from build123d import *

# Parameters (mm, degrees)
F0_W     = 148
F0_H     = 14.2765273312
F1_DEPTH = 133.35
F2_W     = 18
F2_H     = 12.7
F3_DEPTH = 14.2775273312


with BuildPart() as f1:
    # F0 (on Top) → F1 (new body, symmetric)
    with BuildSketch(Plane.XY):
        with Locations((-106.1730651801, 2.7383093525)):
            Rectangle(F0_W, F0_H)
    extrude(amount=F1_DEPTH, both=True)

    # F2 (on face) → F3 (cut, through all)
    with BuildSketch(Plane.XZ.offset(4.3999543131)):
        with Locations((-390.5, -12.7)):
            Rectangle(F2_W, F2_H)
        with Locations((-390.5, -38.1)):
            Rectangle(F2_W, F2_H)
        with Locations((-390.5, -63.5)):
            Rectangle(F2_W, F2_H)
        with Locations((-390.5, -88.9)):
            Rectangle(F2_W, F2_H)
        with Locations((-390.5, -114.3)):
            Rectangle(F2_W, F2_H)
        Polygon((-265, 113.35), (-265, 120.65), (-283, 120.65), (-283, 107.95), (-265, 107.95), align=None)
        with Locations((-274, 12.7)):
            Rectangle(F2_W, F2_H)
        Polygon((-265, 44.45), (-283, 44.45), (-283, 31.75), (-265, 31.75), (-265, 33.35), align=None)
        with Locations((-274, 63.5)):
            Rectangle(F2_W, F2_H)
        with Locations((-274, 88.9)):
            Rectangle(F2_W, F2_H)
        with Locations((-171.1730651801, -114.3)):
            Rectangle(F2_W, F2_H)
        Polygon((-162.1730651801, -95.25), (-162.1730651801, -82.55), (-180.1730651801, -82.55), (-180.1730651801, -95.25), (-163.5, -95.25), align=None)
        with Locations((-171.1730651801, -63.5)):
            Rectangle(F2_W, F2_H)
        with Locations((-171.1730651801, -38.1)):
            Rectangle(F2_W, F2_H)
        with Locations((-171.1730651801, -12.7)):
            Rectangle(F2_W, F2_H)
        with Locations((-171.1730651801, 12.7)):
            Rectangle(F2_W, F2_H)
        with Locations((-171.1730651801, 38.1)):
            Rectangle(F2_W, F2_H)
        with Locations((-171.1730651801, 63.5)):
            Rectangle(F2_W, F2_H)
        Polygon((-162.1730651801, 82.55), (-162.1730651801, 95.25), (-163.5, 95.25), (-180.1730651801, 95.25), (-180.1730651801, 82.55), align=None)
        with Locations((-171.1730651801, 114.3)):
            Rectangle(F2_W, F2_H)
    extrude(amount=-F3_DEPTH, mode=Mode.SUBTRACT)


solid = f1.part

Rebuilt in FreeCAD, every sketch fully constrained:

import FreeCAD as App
import Part
import Sketcher

V = App.Vector
Q = App.Units.Quantity


def add_polygon(sketch, points):
    """Adds a closed chain of lines whose ends are joined by coincident constraints."""
    first, n = sketch.GeometryCount, len(points)
    for a, b in zip(points, points[1:] + points[:1]):
        sketch.addGeometry(Part.LineSegment(App.Vector(*a, 0), App.Vector(*b, 0)), False)
    for i in range(n):
        sketch.addConstraint(Sketcher.Constraint("Coincident", first + i, 2, first + (i + 1) % n, 1))

doc = App.newDocument("Part")
body = doc.addObject("PartDesign::Body", "Body")

# Sketch on XY plane
sketch1 = body.newObject("Sketcher::SketchObject", "Sketch")
sketch1.AttachmentSupport = (doc.getObject("XY_Plane"), [""])
sketch1.MapMode = "FlatFace"
add_polygon(sketch1, [(-180, 10), (-180, -4), (-32, -4), (-32, 10)])  # lines 0-3
sketch1.addConstraint([
    Sketcher.Constraint("Vertical", 0),
    Sketcher.Constraint("Horizontal", 1),
    Sketcher.Constraint("Vertical", 2),
    Sketcher.Constraint("Horizontal", 3),
    Sketcher.Constraint("DistanceX", 1, 1, 1, 2, Q("148 mm")),
    Sketcher.Constraint("DistanceY", 0, 2, 0, 1, Q("14.276527 mm")),
    Sketcher.Constraint("DistanceX", 0, 2, -1, 1, Q("180.173065 mm")),
    Sketcher.Constraint("DistanceY", 0, 2, -1, 1, Q("4.399954 mm")),
])
pad1 = body.newObject("PartDesign::Pad", "Pad")
pad1.Profile = sketch1
pad1.Length = 266.7
pad1.Midplane = True

# Sketch on XZ plane
sketch2 = body.newObject("Sketcher::SketchObject", "Sketch001")
sketch2.AttachmentSupport = (doc.getObject("XZ_Plane"), [""])
sketch2.MapMode = "FlatFace"
sketch2.AttachmentOffset = App.Placement(V(0, 0, 4.399954), App.Rotation())
add_polygon(sketch2, [(-400, -6), (-400, -19), (-382, -19), (-382, -6)])  # lines 0-3
add_polygon(sketch2, [(-400, -32), (-400, -44), (-382, -44), (-382, -32)])  # lines 4-7
add_polygon(sketch2, [(-400, -57), (-400, -70), (-382, -70), (-382, -57)])  # lines 8-11
add_polygon(sketch2, [(-400, -83), (-400, -95), (-382, -95), (-382, -83)])  # lines 12-15
add_polygon(sketch2, [(-400, -108), (-400, -121), (-382, -121), (-382, -108)])  # lines 16-19
add_polygon(sketch2, [(-265, 121), (-283, 121), (-283, 108), (-265, 108)])  # lines 20-23
add_polygon(sketch2, [(-283, 19), (-283, 6), (-265, 6), (-265, 19)])  # lines 24-27
add_polygon(sketch2, [(-265, 44), (-283, 44), (-283, 32), (-265, 32)])  # lines 28-31
add_polygon(sketch2, [(-283, 70), (-283, 57), (-265, 57), (-265, 70)])  # lines 32-35
add_polygon(sketch2, [(-283, 95), (-283, 83), (-265, 83), (-265, 95)])  # lines 36-39
add_polygon(sketch2, [(-180, -108), (-180, -121), (-162, -121), (-162, -108)])  # lines 40-43
add_polygon(sketch2, [(-162, -95), (-162, -83), (-180, -83), (-180, -95)])  # lines 44-47
add_polygon(sketch2, [(-180, -57), (-180, -70), (-162, -70), (-162, -57)])  # lines 48-51
add_polygon(sketch2, [(-180, -32), (-180, -44), (-162, -44), (-162, -32)])  # lines 52-55
add_polygon(sketch2, [(-180, -6), (-180, -19), (-162, -19), (-162, -6)])  # lines 56-59
add_polygon(sketch2, [(-180, 19), (-180, 6), (-162, 6), (-162, 19)])  # lines 60-63
add_polygon(sketch2, [(-180, 44), (-180, 32), (-162, 32), (-162, 44)])  # lines 64-67
add_polygon(sketch2, [(-180, 70), (-180, 57), (-162, 57), (-162, 70)])  # lines 68-71
add_polygon(sketch2, [(-162, 83), (-162, 95), (-180, 95), (-180, 83)])  # lines 72-75
add_polygon(sketch2, [(-180, 121), (-180, 108), (-162, 108), (-162, 121)])  # lines 76-79
sketch2.addConstraint([
    Sketcher.Constraint("Vertical", 0),
    Sketcher.Constraint("Horizontal", 1),
    Sketcher.Constraint("Vertical", 2),
    Sketcher.Constraint("Horizontal", 3),
    Sketcher.Constraint("Vertical", 4),
    Sketcher.Constraint("Horizontal", 5),
    Sketcher.Constraint("Vertical", 6),
    Sketcher.Constraint("Horizontal", 7),
    Sketcher.Constraint("Vertical", 8),
    Sketcher.Constraint("Horizontal", 9),
    Sketcher.Constraint("Vertical", 10),
    Sketcher.Constraint("Horizontal", 11),
    Sketcher.Constraint("Vertical", 12),
    Sketcher.Constraint("Horizontal", 13),
    Sketcher.Constraint("Vertical", 14),
    Sketcher.Constraint("Horizontal", 15),
    Sketcher.Constraint("Vertical", 16),
    Sketcher.Constraint("Horizontal", 17),
    Sketcher.Constraint("Vertical", 18),
    Sketcher.Constraint("Horizontal", 19),
    Sketcher.Constraint("Horizontal", 20),
    Sketcher.Constraint("Vertical", 21),
    Sketcher.Constraint("Horizontal", 22),
    Sketcher.Constraint("Vertical", 23),
    Sketcher.Constraint("Vertical", 24),
    Sketcher.Constraint("Horizontal", 25),
    Sketcher.Constraint("Vertical", 26),
    Sketcher.Constraint("Horizontal", 27),
    Sketcher.Constraint("Horizontal", 28),
    Sketcher.Constraint("Vertical", 29),
    Sketcher.Constraint("Horizontal", 30),
    Sketcher.Constraint("Vertical", 31),
    Sketcher.Constraint("Vertical", 32),
    Sketcher.Constraint("Horizontal", 33),
    Sketcher.Constraint("Vertical", 34),
    Sketcher.Constraint("Horizontal", 35),
    Sketcher.Constraint("Vertical", 36),
    Sketcher.Constraint("Horizontal", 37),
    Sketcher.Constraint("Vertical", 38),
    Sketcher.Constraint("Horizontal", 39),
    Sketcher.Constraint("Vertical", 40),
    Sketcher.Constraint("Horizontal", 41),
    Sketcher.Constraint("Vertical", 42),
    Sketcher.Constraint("Horizontal", 43),
    Sketcher.Constraint("Vertical", 44),
    Sketcher.Constraint("Horizontal", 45),
    Sketcher.Constraint("Vertical", 46),
    Sketcher.Constraint("Horizontal", 47),
    Sketcher.Constraint("Vertical", 48),
    Sketcher.Constraint("Horizontal", 49),
    Sketcher.Constraint("Vertical", 50),
    Sketcher.Constraint("Horizontal", 51),
    Sketcher.Constraint("Vertical", 52),
    Sketcher.Constraint("Horizontal", 53),
    Sketcher.Constraint("Vertical", 54),
    Sketcher.Constraint("Horizontal", 55),
    Sketcher.Constraint("Vertical", 56),
    Sketcher.Constraint("Horizontal", 57),
    Sketcher.Constraint("Vertical", 58),
    Sketcher.Constraint("Horizontal", 59),
    Sketcher.Constraint("Vertical", 60),
    Sketcher.Constraint("Horizontal", 61),
    Sketcher.Constraint("Vertical", 62),
    Sketcher.Constraint("Horizontal", 63),
    Sketcher.Constraint("Vertical", 64),
    Sketcher.Constraint("Horizontal", 65),
    Sketcher.Constraint("Vertical", 66),
    Sketcher.Constraint("Horizontal", 67),
    Sketcher.Constraint("Vertical", 68),
    Sketcher.Constraint("Horizontal", 69),
    Sketcher.Constraint("Vertical", 70),
    Sketcher.Constraint("Horizontal", 71),
    Sketcher.Constraint("Vertical", 72),
    Sketcher.Constraint("Horizontal", 73),
    Sketcher.Constraint("Vertical", 74),
    Sketcher.Constraint("Horizontal", 75),
    Sketcher.Constraint("Vertical", 76),
    Sketcher.Constraint("Horizontal", 77),
    Sketcher.Constraint("Vertical", 78),
    Sketcher.Constraint("Horizontal", 79),
    Sketcher.Constraint("Symmetric", 59, 2, 60, 2, -1),
    Sketcher.Constraint("Symmetric", 57, 2, 62, 2, -1),
    Sketcher.Constraint("Symmetric", 55, 2, 64, 2, -1),
    Sketcher.Constraint("Symmetric", 53, 2, 66, 2, -1),
    Sketcher.Constraint("Symmetric", 51, 2, 68, 2, -1),
    Sketcher.Constraint("Symmetric", 49, 2, 70, 2, -1),
    Sketcher.Constraint("Symmetric", 47, 2, 72, 2, -1),
    Sketcher.Constraint("Symmetric", 45, 2, 74, 2, -1),
    Sketcher.Constraint("Symmetric", 43, 2, 76, 2, -1),
    Sketcher.Constraint("Symmetric", 41, 2, 78, 2, -1),
    Sketcher.Constraint("Horizontal", 17, 2, 40, 2),
    Sketcher.Constraint("Horizontal", 19, 2, 42, 2),
    Sketcher.Constraint("Horizontal", 15, 2, 44, 2),
    Sketcher.Constraint("Horizontal", 13, 2, 46, 2),
    Sketcher.Constraint("Horizontal", 9, 2, 48, 2),
    Sketcher.Constraint("Horizontal", 11, 2, 50, 2),
    Sketcher.Constraint("Horizontal", 5, 2, 52, 2),
    Sketcher.Constraint("Horizontal", 7, 2, 54, 2),
    Sketcher.Constraint("Horizontal", 1, 2, 56, 2),
    Sketcher.Constraint("Horizontal", 3, 2, 58, 2),
    Sketcher.Constraint("Horizontal", 25, 2, 60, 2),
    Sketcher.Constraint("Horizontal", 27, 2, 62, 2),
    Sketcher.Constraint("Horizontal", 30, 2, 64, 2),
    Sketcher.Constraint("Horizontal", 31, 2, 66, 2),
    Sketcher.Constraint("Horizontal", 33, 2, 68, 2),
    Sketcher.Constraint("Horizontal", 35, 2, 70, 2),
    Sketcher.Constraint("Horizontal", 39, 2, 72, 2),
    Sketcher.Constraint("Horizontal", 37, 2, 74, 2),
    Sketcher.Constraint("Horizontal", 22, 2, 76, 2),
    Sketcher.Constraint("Horizontal", 23, 2, 78, 2),
    Sketcher.Constraint("Vertical", 3, 2, 4, 2),
    Sketcher.Constraint("Vertical", 2, 2, 5, 2),
    Sketcher.Constraint("Vertical", 7, 2, 8, 2),
    Sketcher.Constraint("Vertical", 6, 2, 9, 2),
    Sketcher.Constraint("Vertical", 11, 2, 12, 2),
    Sketcher.Constraint("Vertical", 10, 2, 13, 2),
    Sketcher.Constraint("Vertical", 15, 2, 16, 2),
    Sketcher.Constraint("Vertical", 14, 2, 17, 2),
    Sketcher.Constraint("Vertical", 21, 2, 24, 2),
    Sketcher.Constraint("Vertical", 23, 2, 25, 2),
    Sketcher.Constraint("Vertical", 27, 2, 28, 2),
    Sketcher.Constraint("Vertical", 26, 2, 30, 2),
    Sketcher.Constraint("Vertical", 29, 2, 32, 2),
    Sketcher.Constraint("Vertical", 31, 2, 33, 2),
    Sketcher.Constraint("Vertical", 35, 2, 36, 2),
    Sketcher.Constraint("Vertical", 34, 2, 37, 2),
    Sketcher.Constraint("Vertical", 42, 2, 44, 2),
    Sketcher.Constraint("Vertical", 43, 2, 45, 2),
    Sketcher.Constraint("Vertical", 46, 2, 48, 2),
    Sketcher.Constraint("Vertical", 47, 2, 49, 2),
    Sketcher.Constraint("Vertical", 51, 2, 52, 2),
    Sketcher.Constraint("Vertical", 50, 2, 53, 2),
    Sketcher.Constraint("Vertical", 55, 2, 56, 2),
    Sketcher.Constraint("Vertical", 54, 2, 57, 2),
    Sketcher.Constraint("Equal", 19, 20),
    Sketcher.Constraint("Equal", 39, 41),
    Sketcher.Constraint("Equal", 2, 4),
    Sketcher.Constraint("Equal", 6, 8),
    Sketcher.Constraint("Equal", 10, 12),
    Sketcher.Constraint("Equal", 14, 16),
    Sketcher.Constraint("DistanceX", 1, 1, 1, 2, Q("18 mm")),
    Sketcher.Constraint("DistanceY", 0, 2, 0, 1, Q("12.7 mm")),
    Sketcher.Constraint("DistanceX", 20, 2, -1, 1, Q("283 mm")),
    Sketcher.Constraint("DistanceX", 0, 2, -1, 1, Q("399.5 mm")),
    Sketcher.Constraint("DistanceY", 0, 2, -1, 1, Q("19.05 mm")),
    Sketcher.Constraint("DistanceY", 4, 2, -1, 1, Q("44.45 mm")),
    Sketcher.Constraint("DistanceY", 8, 2, -1, 1, Q("69.85 mm")),
    Sketcher.Constraint("DistanceY", 12, 2, -1, 1, Q("95.25 mm")),
    Sketcher.Constraint("DistanceY", 16, 2, -1, 1, Q("120.65 mm")),
    Sketcher.Constraint("DistanceX", 40, 2, -1, 1, Q("180.173065 mm")),
])
pocket1 = body.newObject("PartDesign::Pocket", "Pocket")
pocket1.Profile = sketch2
pocket1.Type = "ThroughAll"

doc.recompute()
